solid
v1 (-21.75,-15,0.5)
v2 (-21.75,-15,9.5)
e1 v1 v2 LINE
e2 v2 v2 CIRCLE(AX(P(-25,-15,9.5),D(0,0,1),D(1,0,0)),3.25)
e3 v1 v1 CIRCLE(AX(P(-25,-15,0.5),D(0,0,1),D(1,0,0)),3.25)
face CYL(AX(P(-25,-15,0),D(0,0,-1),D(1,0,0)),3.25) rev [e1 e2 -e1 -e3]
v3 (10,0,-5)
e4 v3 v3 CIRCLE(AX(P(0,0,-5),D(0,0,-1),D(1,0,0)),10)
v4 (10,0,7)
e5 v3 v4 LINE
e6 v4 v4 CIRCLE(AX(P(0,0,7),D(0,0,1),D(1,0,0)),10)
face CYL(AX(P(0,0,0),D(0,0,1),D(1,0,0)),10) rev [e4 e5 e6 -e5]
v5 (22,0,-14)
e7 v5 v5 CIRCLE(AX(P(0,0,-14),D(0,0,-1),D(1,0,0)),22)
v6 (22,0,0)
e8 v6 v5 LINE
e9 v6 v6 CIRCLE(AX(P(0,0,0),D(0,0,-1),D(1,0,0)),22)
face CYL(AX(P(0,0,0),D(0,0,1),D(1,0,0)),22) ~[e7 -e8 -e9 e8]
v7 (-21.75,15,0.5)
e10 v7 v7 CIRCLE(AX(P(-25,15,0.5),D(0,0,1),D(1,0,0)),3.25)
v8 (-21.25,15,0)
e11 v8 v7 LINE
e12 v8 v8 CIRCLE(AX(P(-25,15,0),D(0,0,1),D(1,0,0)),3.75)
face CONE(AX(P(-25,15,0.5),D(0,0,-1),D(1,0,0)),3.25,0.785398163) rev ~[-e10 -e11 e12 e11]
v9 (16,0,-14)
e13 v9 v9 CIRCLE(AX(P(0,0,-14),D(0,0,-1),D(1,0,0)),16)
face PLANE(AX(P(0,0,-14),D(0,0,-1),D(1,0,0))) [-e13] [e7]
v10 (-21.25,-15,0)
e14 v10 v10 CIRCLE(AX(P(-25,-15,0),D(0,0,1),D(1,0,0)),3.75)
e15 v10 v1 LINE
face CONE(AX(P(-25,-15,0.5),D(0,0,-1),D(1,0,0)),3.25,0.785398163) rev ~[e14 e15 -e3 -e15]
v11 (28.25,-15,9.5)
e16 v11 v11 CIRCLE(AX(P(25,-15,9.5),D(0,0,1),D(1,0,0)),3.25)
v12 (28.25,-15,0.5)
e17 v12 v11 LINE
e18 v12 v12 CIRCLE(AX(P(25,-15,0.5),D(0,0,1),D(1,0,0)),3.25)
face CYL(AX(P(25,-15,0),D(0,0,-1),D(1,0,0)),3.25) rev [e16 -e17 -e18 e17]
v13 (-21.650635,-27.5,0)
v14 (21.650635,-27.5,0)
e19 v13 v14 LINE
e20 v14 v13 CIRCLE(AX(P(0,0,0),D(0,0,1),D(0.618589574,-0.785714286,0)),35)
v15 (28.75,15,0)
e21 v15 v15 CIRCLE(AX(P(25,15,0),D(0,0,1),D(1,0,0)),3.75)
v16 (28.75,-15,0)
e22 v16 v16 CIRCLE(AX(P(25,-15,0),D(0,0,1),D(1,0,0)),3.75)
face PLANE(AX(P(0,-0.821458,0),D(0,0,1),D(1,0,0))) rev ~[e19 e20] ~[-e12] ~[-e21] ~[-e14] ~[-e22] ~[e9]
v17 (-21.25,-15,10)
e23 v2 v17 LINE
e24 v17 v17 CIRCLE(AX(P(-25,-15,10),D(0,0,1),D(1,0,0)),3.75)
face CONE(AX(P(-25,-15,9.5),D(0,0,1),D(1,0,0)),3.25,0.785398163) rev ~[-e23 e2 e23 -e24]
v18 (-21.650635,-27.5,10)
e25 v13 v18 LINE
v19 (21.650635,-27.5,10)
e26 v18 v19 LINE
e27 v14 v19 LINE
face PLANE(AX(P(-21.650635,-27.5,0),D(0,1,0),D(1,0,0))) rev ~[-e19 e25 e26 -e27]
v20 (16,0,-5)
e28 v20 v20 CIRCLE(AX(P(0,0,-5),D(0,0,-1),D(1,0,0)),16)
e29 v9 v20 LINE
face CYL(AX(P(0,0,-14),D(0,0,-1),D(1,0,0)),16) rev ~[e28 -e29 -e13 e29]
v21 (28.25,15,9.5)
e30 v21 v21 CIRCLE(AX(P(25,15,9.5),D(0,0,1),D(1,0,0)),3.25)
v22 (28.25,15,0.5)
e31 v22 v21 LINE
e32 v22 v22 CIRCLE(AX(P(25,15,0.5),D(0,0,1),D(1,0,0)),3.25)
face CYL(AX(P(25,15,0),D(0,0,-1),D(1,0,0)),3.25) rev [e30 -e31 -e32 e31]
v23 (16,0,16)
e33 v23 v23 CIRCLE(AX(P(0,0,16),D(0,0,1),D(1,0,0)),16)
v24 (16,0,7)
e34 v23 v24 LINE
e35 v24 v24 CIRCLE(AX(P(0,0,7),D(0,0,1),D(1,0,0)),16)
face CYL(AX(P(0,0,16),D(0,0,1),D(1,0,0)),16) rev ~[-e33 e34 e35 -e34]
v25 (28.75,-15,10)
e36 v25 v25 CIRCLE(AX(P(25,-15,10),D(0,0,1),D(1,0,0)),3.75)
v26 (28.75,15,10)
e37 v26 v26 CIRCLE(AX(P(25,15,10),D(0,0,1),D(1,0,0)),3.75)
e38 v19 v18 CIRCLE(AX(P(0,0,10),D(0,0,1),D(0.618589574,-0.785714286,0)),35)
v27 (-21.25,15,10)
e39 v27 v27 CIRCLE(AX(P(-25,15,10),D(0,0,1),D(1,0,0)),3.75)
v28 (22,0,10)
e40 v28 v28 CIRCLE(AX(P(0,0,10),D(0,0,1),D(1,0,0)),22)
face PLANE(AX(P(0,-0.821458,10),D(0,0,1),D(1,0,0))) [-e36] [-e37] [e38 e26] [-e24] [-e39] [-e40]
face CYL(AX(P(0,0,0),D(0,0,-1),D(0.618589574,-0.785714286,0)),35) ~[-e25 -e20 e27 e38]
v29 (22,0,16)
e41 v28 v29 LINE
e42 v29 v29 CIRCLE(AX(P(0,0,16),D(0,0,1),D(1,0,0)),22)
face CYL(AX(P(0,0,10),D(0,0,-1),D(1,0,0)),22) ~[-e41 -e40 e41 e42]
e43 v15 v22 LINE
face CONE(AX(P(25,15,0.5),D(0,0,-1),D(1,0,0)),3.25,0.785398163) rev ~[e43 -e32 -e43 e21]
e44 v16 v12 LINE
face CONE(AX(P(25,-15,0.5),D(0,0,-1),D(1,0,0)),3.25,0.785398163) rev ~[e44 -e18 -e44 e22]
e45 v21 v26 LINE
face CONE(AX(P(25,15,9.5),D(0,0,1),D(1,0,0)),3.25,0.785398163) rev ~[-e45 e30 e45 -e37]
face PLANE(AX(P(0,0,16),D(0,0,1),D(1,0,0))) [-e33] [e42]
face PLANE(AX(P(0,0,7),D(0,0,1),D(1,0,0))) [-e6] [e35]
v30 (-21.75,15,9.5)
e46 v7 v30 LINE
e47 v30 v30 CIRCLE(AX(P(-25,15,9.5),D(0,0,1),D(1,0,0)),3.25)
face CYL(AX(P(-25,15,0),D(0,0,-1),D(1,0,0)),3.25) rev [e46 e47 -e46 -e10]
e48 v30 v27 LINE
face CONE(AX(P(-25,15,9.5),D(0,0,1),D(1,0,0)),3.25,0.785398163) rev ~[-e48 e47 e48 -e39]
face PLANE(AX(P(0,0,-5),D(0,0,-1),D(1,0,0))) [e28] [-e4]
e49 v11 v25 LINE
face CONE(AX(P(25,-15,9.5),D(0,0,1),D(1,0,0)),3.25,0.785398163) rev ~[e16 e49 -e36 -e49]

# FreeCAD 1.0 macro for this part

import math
import FreeCAD as App
import Part
import Sketcher

V = App.Vector


def edges_at(feature, points):
    """Names of the edges that pass closest to the given points."""
    edges = feature.Shape.Edges
    near = lambda p: min(range(len(edges)), key=lambda i: edges[i].distToShape(Part.Vertex(*p))[0])
    return sorted({f"Edge{near(p) + 1}" for p in points})

doc = App.newDocument("Part")
params = doc.addObject("Spreadsheet::Sheet", "Params")
for row, (alias, value) in enumerate([
    ("sketch1_diameter", "20 mm"),
    ("sketch1_radius", "35 mm"),
    ("sketch1_diameter2", "6.5 mm"),
    ("pad1_length", "10 mm"),
    ("sketch2_diameter", "44 mm"),
    ("sketch2_diameter2", "20 mm"),
    ("pad2_length", "6 mm"),
    ("sketch3_diameter", "32 mm"),
    ("sketch3_diameter2", "20 mm"),
    ("pocket1_length", "9 mm"),
    ("sketch4_diameter", "44 mm"),
    ("sketch4_diameter2", "20 mm"),
    ("pad3_length", "14 mm"),
    ("sketch5_diameter", "32 mm"),
    ("sketch5_diameter2", "20 mm"),
    ("pocket2_length", "9 mm"),
    ("chamfer_size", "0.5 mm"),
], start=1):
    params.set(f"A{row}", alias)
    params.set(f"B{row}", "=" + value)
    params.setAlias(f"B{row}", alias)

body = doc.addObject("PartDesign::Body", "Body")

sketch1 = body.newObject("Sketcher::SketchObject", "Sketch")
sketch1.AttachmentSupport = (doc.getObject("XY_Plane"), [""])
sketch1.MapMode = "FlatFace"
sketch1.addGeometry([
    Part.LineSegment(V(-21.650635, -27.5, 0), V(21.650635, -27.5, 0)),
    Part.ArcOfCircle(Part.Circle(V(0, 0, 0), V(0, 0, 1), 35), math.radians(-51.786789), math.radians(231.786789)),
    Part.Circle(V(-25, -15, 0), V(0, 0, 1), 3.25),
    Part.Circle(V(25, -15, 0), V(0, 0, 1), 3.25),
    Part.Circle(V(-25, 15, 0), V(0, 0, 1), 3.25),
    Part.Circle(V(0, 0, 0), V(0, 0, 1), 10),
    Part.Circle(V(25, 15, 0), V(0, 0, 1), 3.25),
], False)
sketch1.addConstraint([
    Sketcher.Constraint("Coincident", 0, 1, 1, 2),
    Sketcher.Constraint("Coincident", 1, 1, 0, 2),
    Sketcher.Constraint("Horizontal", 0),
    Sketcher.Constraint("Coincident", 1, 3, -1, 1),
    Sketcher.Constraint("Coincident", 5, 3, -1, 1),
    Sketcher.Constraint("Equal", 2, 3),
    Sketcher.Constraint("Equal", 3, 4),
    Sketcher.Constraint("Equal", 4, 6),
    Sketcher.Constraint("Symmetric", 3, 3, 4, 3, -1, 1),
    Sketcher.Constraint("Symmetric", 2, 3, 6, 3, -1, 1),
    Sketcher.Constraint("Symmetric", 2, 3, 3, 3, -2),
    Sketcher.Constraint("Diameter", 5, 20.0),
    Sketcher.Constraint("Radius", 1, 35.0),
    Sketcher.Constraint("Diameter", 2, 6.5),
    Sketcher.Constraint("DistanceX", 2, 3, -1, 1, 25.0),
    Sketcher.Constraint("DistanceY", 2, 3, -1, 1, 15.0),
    Sketcher.Constraint("DistanceY", 0, 1, -1, 1, 27.5),
])
sketch1.setExpression("Constraints[11]", "Params.sketch1_diameter")
sketch1.setExpression("Constraints[12]", "Params.sketch1_radius")
sketch1.setExpression("Constraints[13]", "Params.sketch1_diameter2")
pad1 = body.newObject("PartDesign::Pad", "Pad")
pad1.Profile = sketch1
pad1.setExpression("Length", "Params.pad1_length")

sketch2 = body.newObject("Sketcher::SketchObject", "Sketch001")
sketch2.AttachmentSupport = (doc.getObject("XY_Plane"), [""])
sketch2.MapMode = "FlatFace"
sketch2.AttachmentOffset = App.Placement(V(0, 0, 10), App.Rotation())
sketch2.addGeometry([
    Part.Circle(V(0, 0, 0), V(0, 0, 1), 22),
    Part.Circle(V(0, 0, 0), V(0, 0, 1), 10),
], False)
sketch2.addConstraint([
    Sketcher.Constraint("Coincident", 0, 3, -1, 1),
    Sketcher.Constraint("Coincident", 1, 3, -1, 1),
    Sketcher.Constraint("Diameter", 0, 44.0),
    Sketcher.Constraint("Diameter", 1, 20.0),
])
sketch2.setExpression("Constraints[2]", "Params.sketch2_diameter")
sketch2.setExpression("Constraints[3]", "Params.sketch2_diameter2")
pad2 = body.newObject("PartDesign::Pad", "Pad001")
pad2.Profile = sketch2
pad2.setExpression("Length", "Params.pad2_length")

sketch3 = body.newObject("Sketcher::SketchObject", "Sketch002")
sketch3.AttachmentSupport = (doc.getObject("XY_Plane"), [""])
sketch3.MapMode = "FlatFace"
sketch3.AttachmentOffset = App.Placement(V(0, 0, 16), App.Rotation())
sketch3.addGeometry([
    Part.Circle(V(0, 0, 0), V(0, 0, 1), 16),
    Part.Circle(V(0, 0, 0), V(0, 0, 1), 10),
], False)
sketch3.addConstraint([
    Sketcher.Constraint("Coincident", 0, 3, -1, 1),
    Sketcher.Constraint("Coincident", 1, 3, -1, 1),
    Sketcher.Constraint("Diameter", 0, 32.0),
    Sketcher.Constraint("Diameter", 1, 20.0),
])
sketch3.setExpression("Constraints[2]", "Params.sketch3_diameter")
sketch3.setExpression("Constraints[3]", "Params.sketch3_diameter2")
pocket1 = body.newObject("PartDesign::Pocket", "Pocket")
pocket1.Profile = sketch3
pocket1.setExpression("Length", "Params.pocket1_length")

sketch4 = body.newObject("Sketcher::SketchObject", "Sketch003")
sketch4.AttachmentSupport = (doc.getObject("XY_Plane"), [""])
sketch4.MapMode = "FlatFace"
sketch4.addGeometry([
    Part.Circle(V(0, 0, 0), V(0, 0, 1), 22),
    Part.Circle(V(0, 0, 0), V(0, 0, 1), 10),
], False)
sketch4.addConstraint([
    Sketcher.Constraint("Coincident", 0, 3, -1, 1),
    Sketcher.Constraint("Coincident", 1, 3, -1, 1),
    Sketcher.Constraint("Diameter", 0, 44.0),
    Sketcher.Constraint("Diameter", 1, 20.0),
])
sketch4.setExpression("Constraints[2]", "Params.sketch4_diameter")
sketch4.setExpression("Constraints[3]", "Params.sketch4_diameter2")
pad3 = body.newObject("PartDesign::Pad", "Pad002")
pad3.Profile = sketch4
pad3.setExpression("Length", "Params.pad3_length")
pad3.Reversed = True

sketch5 = body.newObject("Sketcher::SketchObject", "Sketch004")
sketch5.AttachmentSupport = (doc.getObject("XY_Plane"), [""])
sketch5.MapMode = "FlatFace"
sketch5.AttachmentOffset = App.Placement(V(0, 0, -14), App.Rotation())
sketch5.addGeometry([
    Part.Circle(V(0, 0, 0), V(0, 0, 1), 16),
    Part.Circle(V(0, 0, 0), V(0, 0, 1), 10),
], False)
sketch5.addConstraint([
    Sketcher.Constraint("Coincident", 0, 3, -1, 1),
    Sketcher.Constraint("Coincident", 1, 3, -1, 1),
    Sketcher.Constraint("Diameter", 0, 32.0),
    Sketcher.Constraint("Diameter", 1, 20.0),
])
sketch5.setExpression("Constraints[2]", "Params.sketch5_diameter")
sketch5.setExpression("Constraints[3]", "Params.sketch5_diameter2")
pocket2 = body.newObject("PartDesign::Pocket", "Pocket001")
pocket2.Profile = sketch5
pocket2.setExpression("Length", "Params.pocket2_length")
pocket2.Reversed = True
doc.recompute()

chamfer = body.newObject("PartDesign::Chamfer", "Chamfer")
chamfer.Base = (pocket2, edges_at(pocket2, [
    (-28.25, -15, 10),
    (-28.25, 15, 10),
    (21.75, 15, 10),
    (21.75, -15, 10),
    (21.75, 15, 0),
    (21.75, -15, 0),
    (-28.25, 15, 0),
    (-28.25, -15, 0),
]))
chamfer.setExpression("Size", "Params.chamfer_size")

doc.recompute()
